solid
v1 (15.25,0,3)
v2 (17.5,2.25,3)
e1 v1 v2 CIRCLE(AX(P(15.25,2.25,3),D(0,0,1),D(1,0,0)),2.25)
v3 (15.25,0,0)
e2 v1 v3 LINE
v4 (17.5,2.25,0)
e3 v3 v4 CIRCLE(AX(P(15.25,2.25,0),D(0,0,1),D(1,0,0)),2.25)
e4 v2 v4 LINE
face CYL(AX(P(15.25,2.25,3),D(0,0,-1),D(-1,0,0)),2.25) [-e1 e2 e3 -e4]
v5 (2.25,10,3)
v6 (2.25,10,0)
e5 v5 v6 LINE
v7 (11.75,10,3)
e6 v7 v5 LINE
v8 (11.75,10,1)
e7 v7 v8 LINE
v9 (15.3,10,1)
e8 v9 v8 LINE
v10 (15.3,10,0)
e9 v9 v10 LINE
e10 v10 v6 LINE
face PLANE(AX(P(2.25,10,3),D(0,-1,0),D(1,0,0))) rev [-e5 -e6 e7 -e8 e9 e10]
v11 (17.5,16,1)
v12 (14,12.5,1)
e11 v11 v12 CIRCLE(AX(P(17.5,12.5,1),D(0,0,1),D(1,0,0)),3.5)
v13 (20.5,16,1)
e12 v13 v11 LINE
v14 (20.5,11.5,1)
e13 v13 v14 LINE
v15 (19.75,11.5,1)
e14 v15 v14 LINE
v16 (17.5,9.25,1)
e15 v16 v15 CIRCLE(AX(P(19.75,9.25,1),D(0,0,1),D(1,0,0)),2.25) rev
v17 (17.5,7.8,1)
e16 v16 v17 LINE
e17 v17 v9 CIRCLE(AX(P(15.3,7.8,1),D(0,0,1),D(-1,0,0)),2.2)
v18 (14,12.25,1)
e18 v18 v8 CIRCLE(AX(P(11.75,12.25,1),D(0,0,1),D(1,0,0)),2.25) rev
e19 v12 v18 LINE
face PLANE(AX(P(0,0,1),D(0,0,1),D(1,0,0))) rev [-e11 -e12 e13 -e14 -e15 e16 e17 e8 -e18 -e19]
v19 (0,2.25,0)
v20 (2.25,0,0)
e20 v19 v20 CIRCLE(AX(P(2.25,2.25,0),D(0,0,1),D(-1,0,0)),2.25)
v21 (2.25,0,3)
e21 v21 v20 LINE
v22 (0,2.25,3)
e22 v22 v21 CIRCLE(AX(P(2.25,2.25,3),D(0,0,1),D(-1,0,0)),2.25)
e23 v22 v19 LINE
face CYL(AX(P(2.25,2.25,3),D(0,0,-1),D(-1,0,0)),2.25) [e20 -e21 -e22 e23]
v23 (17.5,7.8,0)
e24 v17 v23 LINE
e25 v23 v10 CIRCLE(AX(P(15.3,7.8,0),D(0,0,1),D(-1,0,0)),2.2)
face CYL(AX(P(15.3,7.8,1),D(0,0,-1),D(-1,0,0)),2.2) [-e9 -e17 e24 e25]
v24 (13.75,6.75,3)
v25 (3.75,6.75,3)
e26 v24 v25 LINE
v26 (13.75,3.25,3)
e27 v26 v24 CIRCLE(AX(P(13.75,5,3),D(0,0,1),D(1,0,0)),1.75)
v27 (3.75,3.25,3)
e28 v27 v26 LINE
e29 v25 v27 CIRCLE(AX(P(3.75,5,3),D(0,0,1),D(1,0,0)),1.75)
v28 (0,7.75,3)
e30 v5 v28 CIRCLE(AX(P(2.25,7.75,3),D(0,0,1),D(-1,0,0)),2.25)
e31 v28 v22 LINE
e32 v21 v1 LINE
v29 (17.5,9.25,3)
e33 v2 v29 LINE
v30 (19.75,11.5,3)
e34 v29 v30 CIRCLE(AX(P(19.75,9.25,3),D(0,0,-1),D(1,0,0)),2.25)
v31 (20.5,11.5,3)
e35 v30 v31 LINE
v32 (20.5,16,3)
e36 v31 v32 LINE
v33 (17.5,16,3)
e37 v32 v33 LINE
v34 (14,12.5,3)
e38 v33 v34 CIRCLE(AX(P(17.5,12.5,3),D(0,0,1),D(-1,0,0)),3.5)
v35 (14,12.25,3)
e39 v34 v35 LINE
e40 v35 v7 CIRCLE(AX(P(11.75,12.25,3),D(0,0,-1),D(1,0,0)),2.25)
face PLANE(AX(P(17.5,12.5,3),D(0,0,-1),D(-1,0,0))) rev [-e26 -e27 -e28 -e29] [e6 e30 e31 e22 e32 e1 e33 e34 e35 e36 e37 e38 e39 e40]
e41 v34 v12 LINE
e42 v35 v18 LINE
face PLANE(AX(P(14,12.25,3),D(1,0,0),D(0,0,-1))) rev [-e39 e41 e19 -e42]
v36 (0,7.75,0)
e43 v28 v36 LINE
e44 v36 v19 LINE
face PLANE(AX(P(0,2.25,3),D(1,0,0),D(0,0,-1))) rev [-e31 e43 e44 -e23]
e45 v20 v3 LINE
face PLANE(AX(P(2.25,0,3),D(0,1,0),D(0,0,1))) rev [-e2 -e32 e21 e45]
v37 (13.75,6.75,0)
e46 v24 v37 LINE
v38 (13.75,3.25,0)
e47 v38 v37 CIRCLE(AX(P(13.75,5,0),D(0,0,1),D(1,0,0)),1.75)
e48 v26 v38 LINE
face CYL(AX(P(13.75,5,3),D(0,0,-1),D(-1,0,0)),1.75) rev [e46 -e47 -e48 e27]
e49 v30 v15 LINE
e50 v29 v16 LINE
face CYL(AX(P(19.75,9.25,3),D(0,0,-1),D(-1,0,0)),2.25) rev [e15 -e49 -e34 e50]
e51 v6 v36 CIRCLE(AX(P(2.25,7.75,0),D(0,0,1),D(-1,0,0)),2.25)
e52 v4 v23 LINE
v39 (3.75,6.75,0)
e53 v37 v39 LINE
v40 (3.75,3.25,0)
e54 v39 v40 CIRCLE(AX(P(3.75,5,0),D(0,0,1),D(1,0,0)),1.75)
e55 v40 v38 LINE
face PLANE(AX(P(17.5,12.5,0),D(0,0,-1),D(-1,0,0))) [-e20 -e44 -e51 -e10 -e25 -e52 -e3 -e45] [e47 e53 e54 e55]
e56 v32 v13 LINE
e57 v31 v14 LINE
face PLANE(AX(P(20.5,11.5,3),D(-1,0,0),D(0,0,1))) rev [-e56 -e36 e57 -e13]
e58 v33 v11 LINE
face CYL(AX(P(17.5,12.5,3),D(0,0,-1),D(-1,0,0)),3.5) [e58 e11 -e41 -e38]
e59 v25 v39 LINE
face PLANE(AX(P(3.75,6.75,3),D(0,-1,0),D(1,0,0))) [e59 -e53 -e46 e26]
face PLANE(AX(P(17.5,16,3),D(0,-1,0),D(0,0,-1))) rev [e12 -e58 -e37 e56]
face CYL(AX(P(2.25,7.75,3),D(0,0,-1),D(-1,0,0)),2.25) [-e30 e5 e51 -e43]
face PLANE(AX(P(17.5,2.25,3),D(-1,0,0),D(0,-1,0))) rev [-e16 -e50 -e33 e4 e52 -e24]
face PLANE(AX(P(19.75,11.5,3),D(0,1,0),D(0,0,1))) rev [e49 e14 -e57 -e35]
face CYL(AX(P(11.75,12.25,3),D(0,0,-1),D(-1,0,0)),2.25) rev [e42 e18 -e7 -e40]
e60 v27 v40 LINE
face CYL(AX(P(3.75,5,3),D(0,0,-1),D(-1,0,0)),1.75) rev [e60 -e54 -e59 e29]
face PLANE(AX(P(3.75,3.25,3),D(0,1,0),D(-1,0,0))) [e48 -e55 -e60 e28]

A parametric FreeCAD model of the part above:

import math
import FreeCAD as App
import Part
import Sketcher

V = App.Vector
Q = App.Units.Quantity


def add_polygon(sketch, points):
    """Adds a closed chain of lines whose ends are joined by coincident constraints."""
    first, n = sketch.GeometryCount, len(points)
    for a, b in zip(points, points[1:] + points[:1]):
        sketch.addGeometry(Part.LineSegment(App.Vector(*a, 0), App.Vector(*b, 0)), False)
    for i in range(n):
        sketch.addConstraint(Sketcher.Constraint("Coincident", first + i, 2, first + (i + 1) % n, 1))

doc = App.newDocument("Part")
params = doc.addObject("Spreadsheet::Sheet", "Params")
for row, (alias, value) in enumerate([
    ("sketch1_radius", "3.5 mm"),
    ("sketch1_width", "13 mm"),
    ("sketch1_width2", "3 mm"),
    ("sketch1_width3", "10 mm"),
    ("sketch1_height", "7 mm"),
    ("pad1_length", "3 mm"),
    ("sketch2_height", "7.5 mm"),
    ("pocket1_length", "1 mm"),
    ("sketch3_radius", "2.2 mm"),
    ("pocket2_length", "1 mm"),
], start=1):
    params.set(f"A{row}", alias)
    params.set(f"B{row}", "=" + value)
    params.setAlias(f"B{row}", alias)

body = doc.addObject("PartDesign::Body", "Body")

sketch1 = doc.addObject("Sketcher::SketchObject", "Sketch")
body.addObject(sketch1)
sketch1.AttachmentSupport = (doc.XY_Plane, [""])
sketch1.MapMode = "FlatFace"
sketch1.addGeometry(Part.LineSegment(V(2.25, 0, 0), V(15.25, 0, 0)), False)
sketch1.addGeometry(Part.ArcOfCircle(Part.Circle(V(15.25, 2.25, 0), V(0, 0, 1), 2.25), math.radians(-90), math.radians(0)), False)
sketch1.addGeometry(Part.LineSegment(V(17.5, 2.25, 0), V(17.5, 9.25, 0)), False)
sketch1.addGeometry(Part.ArcOfCircle(Part.Circle(V(19.75, 9.25, 0), V(0, 0, 1), 2.25), math.radians(90), math.radians(180)), False)
sketch1.addGeometry(Part.LineSegment(V(19.75, 11.5, 0), V(20.5, 11.5, 0)), False)
sketch1.addGeometry(Part.LineSegment(V(20.5, 11.5, 0), V(20.5, 16, 0)), False)
sketch1.addGeometry(Part.LineSegment(V(20.5, 16, 0), V(17.5, 16, 0)), False)
sketch1.addGeometry(Part.ArcOfCircle(Part.Circle(V(17.5, 12.5, 0), V(0, 0, 1), 3.5), math.radians(90), math.radians(180)), False)
sketch1.addGeometry(Part.LineSegment(V(14, 12.5, 0), V(14, 12.25, 0)), False)
sketch1.addGeometry(Part.ArcOfCircle(Part.Circle(V(11.75, 12.25, 0), V(0, 0, 1), 2.25), math.radians(-90), math.radians(0)), False)
sketch1.addGeometry(Part.LineSegment(V(11.75, 10, 0), V(2.25, 10, 0)), False)
sketch1.addGeometry(Part.ArcOfCircle(Part.Circle(V(2.25, 7.75, 0), V(0, 0, 1), 2.25), math.radians(90), math.radians(180)), False)
sketch1.addGeometry(Part.LineSegment(V(0, 7.75, 0), V(0, 2.25, 0)), False)
sketch1.addGeometry(Part.ArcOfCircle(Part.Circle(V(2.25, 2.25, 0), V(0, 0, 1), 2.25), math.radians(180), math.radians(270)), False)
sketch1.addGeometry(Part.ArcOfCircle(Part.Circle(V(3.75, 5, 0), V(0, 0, 1), 1.75), math.radians(90), math.radians(270)), False)
sketch1.addGeometry(Part.LineSegment(V(3.75, 6.75, 0), V(13.75, 6.75, 0)), False)
sketch1.addGeometry(Part.ArcOfCircle(Part.Circle(V(13.75, 5, 0), V(0, 0, 1), 1.75), math.radians(-90), math.radians(90)), False)
sketch1.addGeometry(Part.LineSegment(V(13.75, 3.25, 0), V(3.75, 3.25, 0)), False)
sketch1.addConstraint(Sketcher.Constraint("Tangent", 0, 2, 1, 1))
sketch1.addConstraint(Sketcher.Constraint("Tangent", 1, 2, 2, 1))
sketch1.addConstraint(Sketcher.Constraint("Tangent", 2, 2, 3, 2))
sketch1.addConstraint(Sketcher.Constraint("Tangent", 3, 1, 4, 1))
sketch1.addConstraint(Sketcher.Constraint("Coincident", 4, 2, 5, 1))
sketch1.addConstraint(Sketcher.Constraint("Coincident", 5, 2, 6, 1))
sketch1.addConstraint(Sketcher.Constraint("Tangent", 6, 2, 7, 1))
sketch1.addConstraint(Sketcher.Constraint("Tangent", 7, 2, 8, 1))
sketch1.addConstraint(Sketcher.Constraint("Tangent", 8, 2, 9, 2))
sketch1.addConstraint(Sketcher.Constraint("Tangent", 9, 1, 10, 1))
sketch1.addConstraint(Sketcher.Constraint("Tangent", 10, 2, 11, 1))
sketch1.addConstraint(Sketcher.Constraint("Tangent", 11, 2, 12, 1))
sketch1.addConstraint(Sketcher.Constraint("Tangent", 12, 2, 13, 1))
sketch1.addConstraint(Sketcher.Constraint("Tangent", 13, 2, 0, 1))
sketch1.addConstraint(Sketcher.Constraint("Tangent", 14, 1, 15, 1))
sketch1.addConstraint(Sketcher.Constraint("Tangent", 15, 2, 16, 2))
sketch1.addConstraint(Sketcher.Constraint("Tangent", 16, 1, 17, 1))
sketch1.addConstraint(Sketcher.Constraint("Tangent", 17, 2, 14, 2))
sketch1.addConstraint(Sketcher.Constraint("Horizontal", 0))
sketch1.addConstraint(Sketcher.Constraint("Vertical", 2))
sketch1.addConstraint(Sketcher.Constraint("Horizontal", 4))
sketch1.addConstraint(Sketcher.Constraint("Vertical", 5))
sketch1.addConstraint(Sketcher.Constraint("Horizontal", 6))
sketch1.addConstraint(Sketcher.Constraint("Vertical", 8))
sketch1.addConstraint(Sketcher.Constraint("Horizontal", 10))
sketch1.addConstraint(Sketcher.Constraint("Vertical", 12))
sketch1.addConstraint(Sketcher.Constraint("Horizontal", 15))
sketch1.addConstraint(Sketcher.Constraint("Horizontal", 17))
sketch1.addConstraint(Sketcher.Constraint("Equal", 1, 3))
sketch1.addConstraint(Sketcher.Constraint("Equal", 3, 9))
sketch1.addConstraint(Sketcher.Constraint("Equal", 9, 11))
sketch1.addConstraint(Sketcher.Constraint("Equal", 11, 13))
sketch1.addConstraint(Sketcher.Constraint("PointOnObject", 0, 2, -1))
sketch1.addConstraint(Sketcher.Constraint("PointOnObject", 11, 2, -2))
sketch1.addConstraint(Sketcher.Constraint("Vertical", 7, 3, 1, 2))
sketch1.addConstraint(Sketcher.Constraint("Radius", 7, Q("3.5 mm")))
sketch1.addConstraint(Sketcher.Constraint("DistanceX", 0, 1, 0, 2, Q("13 mm")))
sketch1.addConstraint(Sketcher.Constraint("DistanceX", 6, 2, 6, 1, Q("3 mm")))
sketch1.addConstraint(Sketcher.Constraint("DistanceX", 15, 1, 15, 2, Q("10 mm")))
sketch1.addConstraint(Sketcher.Constraint("DistanceY", 2, 1, 2, 2, Q("7 mm")))
sketch1.addConstraint(Sketcher.Constraint("Radius", 1, Q("2.25 mm")))
sketch1.addConstraint(Sketcher.Constraint("Radius", 14, Q("1.75 mm")))
sketch1.addConstraint(Sketcher.Constraint("DistanceY", 5, 1, 5, 2, Q("4.5 mm")))
sketch1.addConstraint(Sketcher.Constraint("DistanceY", 12, 2, 12, 1, Q("5.5 mm")))
sketch1.addConstraint(Sketcher.Constraint("DistanceY", -1, 1, 14, 3, Q("5 mm")))
sketch1.addConstraint(Sketcher.Constraint("DistanceX", 14, 3, 9, 3, Q("8 mm")))
sketch1.setExpression("Constraints[35]", "Params.sketch1_radius")
sketch1.setExpression("Constraints[36]", "Params.sketch1_width")
sketch1.setExpression("Constraints[37]", "Params.sketch1_width2")
sketch1.setExpression("Constraints[38]", "Params.sketch1_width3")
sketch1.setExpression("Constraints[39]", "Params.sketch1_height")
pad1 = doc.addObject("PartDesign::Pad", "Pad")
body.addObject(pad1)
pad1.Profile = sketch1
pad1.setExpression("Length", "Params.pad1_length")

sketch2 = doc.addObject("Sketcher::SketchObject", "Sketch001")
body.addObject(sketch2)
sketch2.AttachmentSupport = (doc.XY_Plane, [""])
sketch2.MapMode = "FlatFace"
add_polygon(sketch2, [(20, 10), (0, 10), (0, 18), (20, 18)])
sketch2.addConstraint(Sketcher.Constraint("Horizontal", 0))
sketch2.addConstraint(Sketcher.Constraint("Vertical", 1))
sketch2.addConstraint(Sketcher.Constraint("Horizontal", 2))
sketch2.addConstraint(Sketcher.Constraint("Vertical", 3))
sketch2.addConstraint(Sketcher.Constraint("DistanceY", 1, 1, 1, 2, Q("7.5 mm")))
sketch2.addConstraint(Sketcher.Constraint("DistanceY", -1, 1, 0, 2, Q("10 mm")))
sketch2.addConstraint(Sketcher.Constraint("DistanceX", -1, 1, 2, 2, Q("20.5 mm")))
sketch2.addConstraint(Sketcher.Constraint("DistanceX", 0, 2, 0, 1, Q("20.973586 mm")))
sketch2.setExpression("Constraints[8]", "Params.sketch2_height")
pocket1 = doc.addObject("PartDesign::Pocket", "Pocket")
body.addObject(pocket1)
pocket1.Profile = sketch2
pocket1.setExpression("Length", "Params.pocket1_length")
pocket1.Reversed = True

sketch3 = doc.addObject("Sketcher::SketchObject", "Sketch002")
body.addObject(sketch3)
sketch3.AttachmentSupport = (doc.XY_Plane, [""])
sketch3.MapMode = "FlatFace"
sketch3.addGeometry(Part.LineSegment(V(18.8, 7.8, 0), V(17.5, 7.8, 0)), False)
sketch3.addGeometry(Part.ArcOfCircle(Part.Circle(V(15.3, 7.8, 0), V(0, 0, 1), 2.2), math.radians(0), math.radians(90)), False)
sketch3.addGeometry(Part.LineSegment(V(15.3, 10, 0), V(15.3, 10.6, 0)), False)
sketch3.addGeometry(Part.LineSegment(V(15.3, 10.6, 0), V(18.8, 10.6, 0)), False)
sketch3.addGeometry(Part.LineSegment(V(18.8, 10.6, 0), V(18.8, 7.8, 0)), False)
sketch3.addConstraint(Sketcher.Constraint("Coincident", 0, 2, 1, 1))
sketch3.addConstraint(Sketcher.Constraint("Coincident", 1, 2, 2, 1))
sketch3.addConstraint(Sketcher.Constraint("Coincident", 2, 2, 3, 1))
sketch3.addConstraint(Sketcher.Constraint("Coincident", 3, 2, 4, 1))
sketch3.addConstraint(Sketcher.Constraint("Coincident", 4, 2, 0, 1))
sketch3.addConstraint(Sketcher.Constraint("Horizontal", 0))
sketch3.addConstraint(Sketcher.Constraint("Vertical", 2))
sketch3.addConstraint(Sketcher.Constraint("Horizontal", 3))
sketch3.addConstraint(Sketcher.Constraint("Vertical", 4))
sketch3.addConstraint(Sketcher.Constraint("Horizontal", 1, 3, 0, 2))
sketch3.addConstraint(Sketcher.Constraint("Radius", 1, Q("2.2 mm")))
sketch3.addConstraint(Sketcher.Constraint("DistanceY", -1, 1, 1, 2, Q("10 mm")))
sketch3.addConstraint(Sketcher.Constraint("DistanceX", -1, 1, 1, 3, Q("15.3 mm")))
sketch3.addConstraint(Sketcher.Constraint("DistanceX", -1, 1, 1, 2, Q("15.3 mm")))
sketch3.addConstraint(Sketcher.Constraint("DistanceX", 0, 2, 0, 1, Q("1.326048 mm")))
sketch3.addConstraint(Sketcher.Constraint("DistanceY", 2, 1, 2, 2, Q("0.648235 mm")))
sketch3.setExpression("Constraints[10]", "Params.sketch3_radius")
pocket2 = doc.addObject("PartDesign::Pocket", "Pocket001")
body.addObject(pocket2)
pocket2.Profile = sketch3
pocket2.setExpression("Length", "Params.pocket2_length")
pocket2.Reversed = True

doc.recompute()
